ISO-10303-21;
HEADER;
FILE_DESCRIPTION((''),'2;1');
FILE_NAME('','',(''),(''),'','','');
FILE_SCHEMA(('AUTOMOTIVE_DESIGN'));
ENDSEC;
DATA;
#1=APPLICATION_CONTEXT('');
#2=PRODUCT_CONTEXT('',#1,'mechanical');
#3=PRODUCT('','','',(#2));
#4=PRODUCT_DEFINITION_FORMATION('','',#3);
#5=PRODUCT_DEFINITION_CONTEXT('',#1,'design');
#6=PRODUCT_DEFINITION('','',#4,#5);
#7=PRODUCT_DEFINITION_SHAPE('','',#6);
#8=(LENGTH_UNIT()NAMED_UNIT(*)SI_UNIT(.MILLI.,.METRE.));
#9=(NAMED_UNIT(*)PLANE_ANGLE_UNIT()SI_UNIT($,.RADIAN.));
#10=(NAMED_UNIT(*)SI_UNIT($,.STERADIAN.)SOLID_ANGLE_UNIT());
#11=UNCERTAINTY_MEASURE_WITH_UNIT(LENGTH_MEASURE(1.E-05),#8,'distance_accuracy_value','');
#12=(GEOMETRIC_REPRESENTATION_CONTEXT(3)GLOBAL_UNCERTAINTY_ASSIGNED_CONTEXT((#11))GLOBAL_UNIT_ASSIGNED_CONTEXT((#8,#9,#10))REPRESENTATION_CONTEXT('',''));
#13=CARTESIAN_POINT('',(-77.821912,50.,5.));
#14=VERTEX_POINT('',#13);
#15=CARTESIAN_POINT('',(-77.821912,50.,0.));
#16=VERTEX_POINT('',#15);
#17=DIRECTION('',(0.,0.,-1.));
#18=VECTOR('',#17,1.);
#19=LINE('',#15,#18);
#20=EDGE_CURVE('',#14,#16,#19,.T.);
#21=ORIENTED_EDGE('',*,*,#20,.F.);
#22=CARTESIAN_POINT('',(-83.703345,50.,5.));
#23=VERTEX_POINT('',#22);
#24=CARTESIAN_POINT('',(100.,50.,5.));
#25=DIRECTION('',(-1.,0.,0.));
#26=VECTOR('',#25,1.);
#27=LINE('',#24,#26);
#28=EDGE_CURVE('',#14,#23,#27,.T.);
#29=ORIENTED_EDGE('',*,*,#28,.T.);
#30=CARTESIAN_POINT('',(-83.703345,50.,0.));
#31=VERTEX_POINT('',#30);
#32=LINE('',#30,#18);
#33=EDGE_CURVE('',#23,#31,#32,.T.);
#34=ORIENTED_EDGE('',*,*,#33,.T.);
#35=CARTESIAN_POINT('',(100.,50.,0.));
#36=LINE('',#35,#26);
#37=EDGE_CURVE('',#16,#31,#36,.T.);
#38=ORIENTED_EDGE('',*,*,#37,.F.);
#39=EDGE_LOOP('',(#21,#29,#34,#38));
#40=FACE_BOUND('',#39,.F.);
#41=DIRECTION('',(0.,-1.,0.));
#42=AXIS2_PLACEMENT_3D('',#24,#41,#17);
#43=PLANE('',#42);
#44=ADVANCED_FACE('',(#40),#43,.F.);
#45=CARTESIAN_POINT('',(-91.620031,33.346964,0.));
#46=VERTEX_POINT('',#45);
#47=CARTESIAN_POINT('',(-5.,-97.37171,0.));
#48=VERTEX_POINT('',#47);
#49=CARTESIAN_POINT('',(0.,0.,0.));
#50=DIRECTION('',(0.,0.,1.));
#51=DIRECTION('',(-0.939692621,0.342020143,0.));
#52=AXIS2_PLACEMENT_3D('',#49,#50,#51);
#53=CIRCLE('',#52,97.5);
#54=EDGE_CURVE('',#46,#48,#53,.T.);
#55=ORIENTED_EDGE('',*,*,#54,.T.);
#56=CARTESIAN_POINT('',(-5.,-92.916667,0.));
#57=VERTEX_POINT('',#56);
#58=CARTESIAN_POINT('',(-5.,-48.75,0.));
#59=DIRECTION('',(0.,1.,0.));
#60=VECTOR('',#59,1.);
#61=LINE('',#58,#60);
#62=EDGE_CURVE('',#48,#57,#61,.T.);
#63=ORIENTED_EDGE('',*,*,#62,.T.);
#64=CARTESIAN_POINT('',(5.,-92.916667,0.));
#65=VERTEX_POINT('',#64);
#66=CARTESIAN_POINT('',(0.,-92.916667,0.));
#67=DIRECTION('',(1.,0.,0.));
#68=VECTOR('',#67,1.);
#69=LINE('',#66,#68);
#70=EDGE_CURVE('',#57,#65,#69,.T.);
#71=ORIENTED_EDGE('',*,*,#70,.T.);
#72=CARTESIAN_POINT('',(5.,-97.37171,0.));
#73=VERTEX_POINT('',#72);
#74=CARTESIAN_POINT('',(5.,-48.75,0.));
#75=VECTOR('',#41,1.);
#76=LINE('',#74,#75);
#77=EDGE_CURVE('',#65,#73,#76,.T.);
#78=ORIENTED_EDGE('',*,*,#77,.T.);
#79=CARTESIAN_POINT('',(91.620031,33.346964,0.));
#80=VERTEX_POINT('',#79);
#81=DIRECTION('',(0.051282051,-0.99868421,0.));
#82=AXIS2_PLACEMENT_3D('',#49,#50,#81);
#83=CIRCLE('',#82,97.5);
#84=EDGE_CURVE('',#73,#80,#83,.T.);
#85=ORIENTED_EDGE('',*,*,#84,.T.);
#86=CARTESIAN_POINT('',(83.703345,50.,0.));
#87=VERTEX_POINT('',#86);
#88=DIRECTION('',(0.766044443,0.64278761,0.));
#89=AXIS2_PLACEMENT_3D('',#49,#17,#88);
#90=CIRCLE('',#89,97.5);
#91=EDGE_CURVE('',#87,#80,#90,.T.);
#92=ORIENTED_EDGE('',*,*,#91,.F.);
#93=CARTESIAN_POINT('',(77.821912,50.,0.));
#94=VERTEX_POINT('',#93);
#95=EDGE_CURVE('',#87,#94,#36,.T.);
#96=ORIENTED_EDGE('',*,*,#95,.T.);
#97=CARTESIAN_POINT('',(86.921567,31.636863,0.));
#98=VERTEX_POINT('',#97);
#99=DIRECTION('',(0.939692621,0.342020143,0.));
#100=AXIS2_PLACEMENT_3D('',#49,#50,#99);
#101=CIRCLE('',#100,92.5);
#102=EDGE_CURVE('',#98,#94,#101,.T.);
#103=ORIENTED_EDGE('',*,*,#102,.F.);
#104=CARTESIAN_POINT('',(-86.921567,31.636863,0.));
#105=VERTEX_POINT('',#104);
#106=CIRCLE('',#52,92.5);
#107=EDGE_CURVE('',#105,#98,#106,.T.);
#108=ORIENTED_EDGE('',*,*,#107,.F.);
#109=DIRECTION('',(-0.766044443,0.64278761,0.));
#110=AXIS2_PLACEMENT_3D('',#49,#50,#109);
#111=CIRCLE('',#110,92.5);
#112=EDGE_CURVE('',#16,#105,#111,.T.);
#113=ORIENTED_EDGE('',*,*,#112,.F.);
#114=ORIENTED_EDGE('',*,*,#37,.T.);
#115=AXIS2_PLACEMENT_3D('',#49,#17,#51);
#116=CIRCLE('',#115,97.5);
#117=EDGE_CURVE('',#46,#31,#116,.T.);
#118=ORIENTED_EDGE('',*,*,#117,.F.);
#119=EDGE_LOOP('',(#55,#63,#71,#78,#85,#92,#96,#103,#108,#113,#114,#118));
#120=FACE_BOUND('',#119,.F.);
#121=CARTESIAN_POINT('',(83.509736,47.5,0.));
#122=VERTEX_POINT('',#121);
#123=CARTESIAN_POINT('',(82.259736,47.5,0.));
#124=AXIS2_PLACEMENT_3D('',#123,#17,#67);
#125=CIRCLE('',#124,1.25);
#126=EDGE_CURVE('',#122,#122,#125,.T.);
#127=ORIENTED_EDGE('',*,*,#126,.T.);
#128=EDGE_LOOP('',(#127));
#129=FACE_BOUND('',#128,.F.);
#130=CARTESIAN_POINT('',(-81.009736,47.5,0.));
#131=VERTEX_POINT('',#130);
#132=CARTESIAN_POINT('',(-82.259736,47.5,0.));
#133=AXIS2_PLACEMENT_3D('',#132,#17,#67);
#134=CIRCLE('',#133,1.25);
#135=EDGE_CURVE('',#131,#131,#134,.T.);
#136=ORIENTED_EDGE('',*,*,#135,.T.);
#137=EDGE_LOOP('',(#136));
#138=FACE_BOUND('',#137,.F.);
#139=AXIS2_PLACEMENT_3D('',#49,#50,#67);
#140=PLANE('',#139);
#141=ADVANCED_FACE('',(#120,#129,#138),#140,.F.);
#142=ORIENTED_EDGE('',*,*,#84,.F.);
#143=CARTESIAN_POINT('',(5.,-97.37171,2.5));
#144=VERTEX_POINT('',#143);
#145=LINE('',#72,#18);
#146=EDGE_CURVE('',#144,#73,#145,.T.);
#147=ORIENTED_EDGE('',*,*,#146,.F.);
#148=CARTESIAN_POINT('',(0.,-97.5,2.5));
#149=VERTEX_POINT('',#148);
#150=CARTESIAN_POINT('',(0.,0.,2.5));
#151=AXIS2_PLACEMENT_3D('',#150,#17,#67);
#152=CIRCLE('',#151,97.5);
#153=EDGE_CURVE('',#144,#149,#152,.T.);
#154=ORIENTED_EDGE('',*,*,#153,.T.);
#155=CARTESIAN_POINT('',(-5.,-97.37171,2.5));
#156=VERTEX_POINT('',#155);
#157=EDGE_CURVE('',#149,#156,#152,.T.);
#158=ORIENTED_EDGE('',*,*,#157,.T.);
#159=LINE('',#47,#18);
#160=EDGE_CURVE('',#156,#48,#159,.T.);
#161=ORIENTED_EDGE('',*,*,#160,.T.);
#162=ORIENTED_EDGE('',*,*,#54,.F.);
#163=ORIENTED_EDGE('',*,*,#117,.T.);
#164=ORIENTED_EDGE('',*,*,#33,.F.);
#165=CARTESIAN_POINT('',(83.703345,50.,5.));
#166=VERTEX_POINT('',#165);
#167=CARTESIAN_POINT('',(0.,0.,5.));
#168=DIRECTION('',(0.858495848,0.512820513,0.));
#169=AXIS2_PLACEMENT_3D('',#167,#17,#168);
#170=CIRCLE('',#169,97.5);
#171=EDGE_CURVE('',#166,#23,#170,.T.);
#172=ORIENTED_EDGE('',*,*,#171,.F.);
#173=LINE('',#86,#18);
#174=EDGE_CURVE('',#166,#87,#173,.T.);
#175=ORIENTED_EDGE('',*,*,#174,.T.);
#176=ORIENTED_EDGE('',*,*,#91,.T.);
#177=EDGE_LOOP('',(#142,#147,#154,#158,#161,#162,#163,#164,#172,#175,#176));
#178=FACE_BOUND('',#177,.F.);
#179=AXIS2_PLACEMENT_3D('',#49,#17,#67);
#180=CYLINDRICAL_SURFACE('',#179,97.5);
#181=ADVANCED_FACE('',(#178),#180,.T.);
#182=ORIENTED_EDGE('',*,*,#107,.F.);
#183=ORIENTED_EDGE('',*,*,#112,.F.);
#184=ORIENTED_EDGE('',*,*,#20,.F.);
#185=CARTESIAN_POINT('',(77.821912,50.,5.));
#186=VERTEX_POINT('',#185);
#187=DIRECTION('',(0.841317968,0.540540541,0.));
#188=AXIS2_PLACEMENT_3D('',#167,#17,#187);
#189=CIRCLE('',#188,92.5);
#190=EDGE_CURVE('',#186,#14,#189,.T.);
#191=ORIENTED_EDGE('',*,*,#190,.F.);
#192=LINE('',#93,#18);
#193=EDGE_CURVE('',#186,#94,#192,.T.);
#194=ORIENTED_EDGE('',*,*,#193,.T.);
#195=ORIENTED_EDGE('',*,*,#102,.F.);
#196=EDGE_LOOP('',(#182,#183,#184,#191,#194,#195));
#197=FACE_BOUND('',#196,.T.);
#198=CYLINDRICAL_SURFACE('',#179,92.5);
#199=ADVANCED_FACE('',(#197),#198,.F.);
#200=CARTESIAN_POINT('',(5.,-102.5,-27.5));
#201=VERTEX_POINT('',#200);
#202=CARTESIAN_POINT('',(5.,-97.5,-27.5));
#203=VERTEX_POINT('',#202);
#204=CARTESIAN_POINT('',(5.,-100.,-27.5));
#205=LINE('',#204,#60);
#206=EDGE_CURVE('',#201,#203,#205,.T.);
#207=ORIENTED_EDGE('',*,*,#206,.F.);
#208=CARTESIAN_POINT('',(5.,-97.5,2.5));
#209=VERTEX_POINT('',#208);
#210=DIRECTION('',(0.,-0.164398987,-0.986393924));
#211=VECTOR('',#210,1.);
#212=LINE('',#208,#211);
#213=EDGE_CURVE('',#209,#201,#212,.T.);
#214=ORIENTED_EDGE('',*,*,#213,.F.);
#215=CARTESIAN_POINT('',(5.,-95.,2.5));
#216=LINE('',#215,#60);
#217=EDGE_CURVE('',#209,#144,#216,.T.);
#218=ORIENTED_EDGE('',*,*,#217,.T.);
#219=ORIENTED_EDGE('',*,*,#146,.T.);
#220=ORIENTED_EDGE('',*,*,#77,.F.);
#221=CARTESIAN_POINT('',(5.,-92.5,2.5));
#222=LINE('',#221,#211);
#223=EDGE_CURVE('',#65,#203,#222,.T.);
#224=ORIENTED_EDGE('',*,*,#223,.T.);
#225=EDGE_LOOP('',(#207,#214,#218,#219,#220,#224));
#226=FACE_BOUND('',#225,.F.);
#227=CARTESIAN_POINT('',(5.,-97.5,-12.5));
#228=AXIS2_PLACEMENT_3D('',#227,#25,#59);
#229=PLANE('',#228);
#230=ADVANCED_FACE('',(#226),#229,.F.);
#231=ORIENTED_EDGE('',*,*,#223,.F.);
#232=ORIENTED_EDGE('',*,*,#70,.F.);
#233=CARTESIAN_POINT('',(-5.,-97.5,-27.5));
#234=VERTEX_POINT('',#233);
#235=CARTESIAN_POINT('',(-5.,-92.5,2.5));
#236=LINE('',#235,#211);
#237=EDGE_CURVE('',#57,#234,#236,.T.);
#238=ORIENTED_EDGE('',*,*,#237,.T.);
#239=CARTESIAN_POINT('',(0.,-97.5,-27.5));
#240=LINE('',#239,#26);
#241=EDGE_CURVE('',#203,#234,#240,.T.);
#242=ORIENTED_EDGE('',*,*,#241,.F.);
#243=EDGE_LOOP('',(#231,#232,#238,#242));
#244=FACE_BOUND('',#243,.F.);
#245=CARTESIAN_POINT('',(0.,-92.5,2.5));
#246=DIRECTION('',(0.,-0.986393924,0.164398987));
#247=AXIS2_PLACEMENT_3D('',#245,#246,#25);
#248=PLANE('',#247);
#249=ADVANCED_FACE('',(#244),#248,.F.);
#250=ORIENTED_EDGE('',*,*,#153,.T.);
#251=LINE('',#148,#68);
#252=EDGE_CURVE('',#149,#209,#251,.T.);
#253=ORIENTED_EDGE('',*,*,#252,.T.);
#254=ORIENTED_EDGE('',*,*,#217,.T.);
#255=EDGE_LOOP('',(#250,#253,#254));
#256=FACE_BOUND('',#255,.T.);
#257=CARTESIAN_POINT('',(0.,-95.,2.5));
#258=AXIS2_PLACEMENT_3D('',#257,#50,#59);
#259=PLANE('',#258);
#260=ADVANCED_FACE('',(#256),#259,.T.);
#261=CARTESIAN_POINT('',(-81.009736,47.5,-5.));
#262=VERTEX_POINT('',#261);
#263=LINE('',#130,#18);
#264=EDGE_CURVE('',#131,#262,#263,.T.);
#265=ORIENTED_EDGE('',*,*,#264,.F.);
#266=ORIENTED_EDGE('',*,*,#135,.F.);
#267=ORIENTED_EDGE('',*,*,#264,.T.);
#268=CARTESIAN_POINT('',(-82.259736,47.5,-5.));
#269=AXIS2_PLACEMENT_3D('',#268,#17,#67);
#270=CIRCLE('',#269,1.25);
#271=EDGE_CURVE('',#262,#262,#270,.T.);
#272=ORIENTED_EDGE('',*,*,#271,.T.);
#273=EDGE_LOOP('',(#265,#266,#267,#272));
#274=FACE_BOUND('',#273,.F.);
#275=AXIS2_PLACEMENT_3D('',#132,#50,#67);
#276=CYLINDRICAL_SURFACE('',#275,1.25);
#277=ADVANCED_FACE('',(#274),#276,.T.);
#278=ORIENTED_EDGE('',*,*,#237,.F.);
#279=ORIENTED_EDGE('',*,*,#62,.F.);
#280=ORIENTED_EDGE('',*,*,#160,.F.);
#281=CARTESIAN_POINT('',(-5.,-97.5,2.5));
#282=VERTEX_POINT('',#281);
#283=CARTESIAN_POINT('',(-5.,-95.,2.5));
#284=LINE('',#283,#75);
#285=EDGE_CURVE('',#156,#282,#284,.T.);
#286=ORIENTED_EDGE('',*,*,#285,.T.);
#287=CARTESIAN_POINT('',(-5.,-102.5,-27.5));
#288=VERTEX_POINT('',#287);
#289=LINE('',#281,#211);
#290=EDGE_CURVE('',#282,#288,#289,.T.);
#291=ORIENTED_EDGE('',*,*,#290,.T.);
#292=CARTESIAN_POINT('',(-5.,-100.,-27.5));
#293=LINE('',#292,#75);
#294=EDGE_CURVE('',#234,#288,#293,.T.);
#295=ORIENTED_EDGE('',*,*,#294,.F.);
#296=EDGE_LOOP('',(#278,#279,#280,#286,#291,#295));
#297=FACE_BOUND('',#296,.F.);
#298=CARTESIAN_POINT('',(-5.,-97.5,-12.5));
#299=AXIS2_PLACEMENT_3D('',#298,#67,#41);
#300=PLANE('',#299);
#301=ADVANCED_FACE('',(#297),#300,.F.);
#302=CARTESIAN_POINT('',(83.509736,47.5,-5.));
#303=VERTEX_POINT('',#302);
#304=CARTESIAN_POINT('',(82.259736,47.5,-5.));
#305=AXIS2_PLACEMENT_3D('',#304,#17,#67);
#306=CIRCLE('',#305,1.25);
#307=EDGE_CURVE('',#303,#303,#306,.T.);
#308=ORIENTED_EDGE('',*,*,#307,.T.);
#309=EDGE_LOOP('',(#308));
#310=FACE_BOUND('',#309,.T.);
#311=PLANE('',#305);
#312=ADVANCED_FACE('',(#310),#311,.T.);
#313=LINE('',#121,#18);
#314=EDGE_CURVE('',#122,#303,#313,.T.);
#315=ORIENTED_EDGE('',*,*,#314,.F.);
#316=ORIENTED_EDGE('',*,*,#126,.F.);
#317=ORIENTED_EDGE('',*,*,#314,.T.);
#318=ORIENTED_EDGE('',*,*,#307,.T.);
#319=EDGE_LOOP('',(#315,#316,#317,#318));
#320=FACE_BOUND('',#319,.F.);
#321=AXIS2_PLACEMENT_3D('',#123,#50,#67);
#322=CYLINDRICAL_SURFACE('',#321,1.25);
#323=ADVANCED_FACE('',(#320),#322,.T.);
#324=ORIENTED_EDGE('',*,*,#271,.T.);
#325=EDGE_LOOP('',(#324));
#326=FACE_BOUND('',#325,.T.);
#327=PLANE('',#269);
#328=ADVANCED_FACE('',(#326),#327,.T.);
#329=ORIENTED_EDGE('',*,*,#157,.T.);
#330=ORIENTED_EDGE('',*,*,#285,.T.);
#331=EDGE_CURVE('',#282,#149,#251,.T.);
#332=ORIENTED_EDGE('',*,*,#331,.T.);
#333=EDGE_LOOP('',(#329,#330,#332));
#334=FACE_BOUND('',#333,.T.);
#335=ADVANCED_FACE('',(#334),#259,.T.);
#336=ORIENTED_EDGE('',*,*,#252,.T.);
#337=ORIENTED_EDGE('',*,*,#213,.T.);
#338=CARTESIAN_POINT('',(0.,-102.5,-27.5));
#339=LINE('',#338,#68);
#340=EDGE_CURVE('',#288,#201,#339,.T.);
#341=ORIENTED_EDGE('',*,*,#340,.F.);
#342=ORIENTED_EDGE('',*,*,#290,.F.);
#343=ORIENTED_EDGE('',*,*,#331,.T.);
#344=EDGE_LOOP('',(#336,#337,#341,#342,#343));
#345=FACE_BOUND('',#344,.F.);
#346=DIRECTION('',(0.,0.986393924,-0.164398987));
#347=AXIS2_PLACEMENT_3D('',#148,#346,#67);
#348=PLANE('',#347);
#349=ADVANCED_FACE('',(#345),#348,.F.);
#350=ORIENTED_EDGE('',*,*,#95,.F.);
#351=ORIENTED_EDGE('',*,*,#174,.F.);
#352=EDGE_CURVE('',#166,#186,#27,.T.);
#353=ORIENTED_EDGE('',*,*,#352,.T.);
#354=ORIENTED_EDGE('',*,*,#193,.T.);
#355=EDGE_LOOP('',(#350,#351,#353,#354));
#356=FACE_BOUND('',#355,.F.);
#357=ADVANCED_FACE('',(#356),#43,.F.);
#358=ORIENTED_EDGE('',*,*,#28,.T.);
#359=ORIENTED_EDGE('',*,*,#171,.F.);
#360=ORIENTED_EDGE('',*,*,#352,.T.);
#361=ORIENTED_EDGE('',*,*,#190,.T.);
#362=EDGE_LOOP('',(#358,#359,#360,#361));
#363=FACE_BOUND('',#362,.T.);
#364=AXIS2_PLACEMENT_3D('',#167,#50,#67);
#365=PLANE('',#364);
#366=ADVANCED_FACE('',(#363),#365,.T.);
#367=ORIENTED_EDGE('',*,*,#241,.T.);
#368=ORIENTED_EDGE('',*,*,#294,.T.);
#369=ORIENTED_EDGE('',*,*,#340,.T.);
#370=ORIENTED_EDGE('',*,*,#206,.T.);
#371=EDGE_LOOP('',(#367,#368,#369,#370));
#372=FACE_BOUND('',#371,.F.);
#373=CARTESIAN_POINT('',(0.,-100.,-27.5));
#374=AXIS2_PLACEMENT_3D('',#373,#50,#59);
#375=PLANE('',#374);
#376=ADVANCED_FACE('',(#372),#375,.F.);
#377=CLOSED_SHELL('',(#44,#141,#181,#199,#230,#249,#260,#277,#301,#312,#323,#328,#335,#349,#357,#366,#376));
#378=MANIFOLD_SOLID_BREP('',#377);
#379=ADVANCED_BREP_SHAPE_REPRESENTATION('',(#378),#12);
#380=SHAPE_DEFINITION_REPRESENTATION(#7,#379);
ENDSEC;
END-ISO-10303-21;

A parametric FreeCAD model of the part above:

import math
import FreeCAD as App
import Part
import Sketcher

V = App.Vector
Q = App.Units.Quantity

doc = App.newDocument("Part")
body = doc.addObject("PartDesign::Body", "Body")

sketch1 = body.newObject("Sketcher::SketchObject", "Sketch")
sketch1.AttachmentSupport = (doc.getObject("XY_Plane"), [""])
sketch1.MapMode = "FlatFace"
sketch1.addGeometry(Part.Circle(V(0, 0, 0), V(0, 0, 1), 98), False)
sketch1.addGeometry(Part.Circle(V(0, 0, 0), V(0, 0, 1), 92), False)
sketch1.addConstraint(Sketcher.Constraint("Coincident", 0, 3, -1, 1))
sketch1.addConstraint(Sketcher.Constraint("Coincident", 1, 3, -1, 1))
sketch1.addConstraint(Sketcher.Constraint("Diameter", 0, 195.0))
sketch1.addConstraint(Sketcher.Constraint("Diameter", 1, 185.0))
pad1 = body.newObject("PartDesign::Pad", "Pad")
pad1.Profile = sketch1
pad1.Length = 5

sketch2 = body.newObject("Sketcher::SketchObject", "Sketch001")
sketch2.AttachmentSupport = (doc.getObject("XY_Plane"), [""])
sketch2.MapMode = "FlatFace"
sketch2.AttachmentOffset = App.Placement(V(0, 0, -27.5), App.Rotation())
sketch2.addGeometry(Part.LineSegment(V(-5, -98, 0), V(-5, -102, 0)), False)
sketch2.addGeometry(Part.LineSegment(V(-5, -102, 0), V(5, -102, 0)), False)
sketch2.addGeometry(Part.LineSegment(V(5, -102, 0), V(5, -98, 0)), False)
sketch2.addGeometry(Part.LineSegment(V(5, -98, 0), V(-5, -98, 0)), False)
sketch2.addConstraint(Sketcher.Constraint("Coincident", 0, 2, 1, 1))
sketch2.addConstraint(Sketcher.Constraint("Coincident", 1, 2, 2, 1))
sketch2.addConstraint(Sketcher.Constraint("Coincident", 2, 2, 3, 1))
sketch2.addConstraint(Sketcher.Constraint("Coincident", 3, 2, 0, 1))
sketch2.addConstraint(Sketcher.Constraint("Vertical", 0))
sketch2.addConstraint(Sketcher.Constraint("Horizontal", 1))
sketch2.addConstraint(Sketcher.Constraint("Vertical", 2))
sketch2.addConstraint(Sketcher.Constraint("Horizontal", 3))
sketch2.addConstraint(Sketcher.Constraint("DistanceX", 1, 1, 1, 2, 10.0))
sketch2.addConstraint(Sketcher.Constraint("DistanceY", 0, 2, 0, 1, 5.0))
sketch2.addConstraint(Sketcher.Constraint("DistanceX", 0, 2, -1, 1, 5.0))
sketch2.addConstraint(Sketcher.Constraint("DistanceY", 0, 2, -1, 1, 102.5))

sketch3 = body.newObject("Sketcher::SketchObject", "Sketch002")
sketch3.Placement = App.Placement(V(0, -92.837838, 15.472973), App.Rotation(V(0, 0.164398987, 0.986393924), V(1, 0, 0), V(0, 0.986393924, -0.164398987), "ZXY"))
sketch3.addGeometry(Part.LineSegment(V(-13, 0, 0), V(-44, 0, 0)), False)
sketch3.addConstraint(Sketcher.Constraint("Horizontal", 0))
sketch3.addConstraint(Sketcher.Constraint("PointOnObject", 0, 1, -1))
sketch3.addConstraint(Sketcher.Constraint("DistanceX", 0, 2, 0, 1, 30.413813))
sketch3.addConstraint(Sketcher.Constraint("DistanceX", 0, 1, -1, 1, 13.151919))
doc.recompute()

additivepipe = body.newObject("PartDesign::AdditivePipe", "AdditivePipe")
additivepipe.Profile = sketch2
additivepipe.Spine = (sketch3, ["Edge1"])

sketch4 = body.newObject("Sketcher::SketchObject", "Sketch003")
sketch4.AttachmentSupport = (doc.getObject("XY_Plane"), [""])
sketch4.MapMode = "FlatFace"
sketch4.addGeometry(Part.LineSegment(V(-74.7, 62.7, 0), V(-70.9, 59.5, 0)), False)
sketch4.addGeometry(Part.ArcOfCircle(Part.Circle(V(0, 0, 0), V(0, 0, 1), 92.5), math.radians(140), math.radians(160)), False)
sketch4.addGeometry(Part.LineSegment(V(-86.9, 31.6, 0), V(-91.6, 33.3, 0)), False)
sketch4.addGeometry(Part.ArcOfCircle(Part.Circle(V(0, 0, 0), V(0, 0, 1), 97.5), math.radians(140), math.radians(160)), False)
sketch4.addGeometry(Part.ArcOfCircle(Part.Circle(V(0, 0, 0), V(0, 0, 1), 92.5), math.radians(20), math.radians(40)), False)
sketch4.addGeometry(Part.LineSegment(V(70.9, 59.5, 0), V(74.7, 62.7, 0)), False)
sketch4.addGeometry(Part.ArcOfCircle(Part.Circle(V(0, 0, 0), V(0, 0, 1), 97.5), math.radians(20), math.radians(40)), False)
sketch4.addGeometry(Part.LineSegment(V(91.6, 33.3, 0), V(86.9, 31.6, 0)), False)
sketch4.addConstraint(Sketcher.Constraint("Coincident", 0, 2, 1, 1))
sketch4.addConstraint(Sketcher.Constraint("Coincident", 1, 2, 2, 1))
sketch4.addConstraint(Sketcher.Constraint("Coincident", 2, 2, 3, 2))
sketch4.addConstraint(Sketcher.Constraint("Coincident", 3, 1, 0, 1))
sketch4.addConstraint(Sketcher.Constraint("Coincident", 4, 2, 5, 1))
sketch4.addConstraint(Sketcher.Constraint("Coincident", 5, 2, 6, 2))
sketch4.addConstraint(Sketcher.Constraint("Coincident", 6, 1, 7, 1))
sketch4.addConstraint(Sketcher.Constraint("Coincident", 7, 2, 4, 1))
sketch4.addConstraint(Sketcher.Constraint("Coincident", 1, 3, -1, 1))
sketch4.addConstraint(Sketcher.Constraint("Coincident", 3, 3, -1, 1))
sketch4.addConstraint(Sketcher.Constraint("Coincident", 4, 3, -1, 1))
sketch4.addConstraint(Sketcher.Constraint("Coincident", 6, 3, -1, 1))
sketch4.addConstraint(Sketcher.Constraint("Equal", 1, 4))
sketch4.addConstraint(Sketcher.Constraint("Equal", 3, 6))
sketch4.addConstraint(Sketcher.Constraint("Horizontal", 0, 2, 4, 2))
sketch4.addConstraint(Sketcher.Constraint("Horizontal", 3, 1, 5, 2))
sketch4.addConstraint(Sketcher.Constraint("Horizontal", 2, 2, 6, 1))
sketch4.addConstraint(Sketcher.Constraint("Horizontal", 1, 2, 7, 2))
sketch4.addConstraint(Sketcher.Constraint("Radius", 1, 92.5))
sketch4.addConstraint(Sketcher.Constraint("Radius", 3, 97.5))
sketch4.addConstraint(Sketcher.Constraint("Angle", 0, Q("-40 deg")))
sketch4.addConstraint(Sketcher.Constraint("Angle", 2, Q("160 deg")))
sketch4.addConstraint(Sketcher.Constraint("DistanceX", 0, 2, -1, 1, 70.859111))
sketch4.addConstraint(Sketcher.Constraint("DistanceX", 2, 2, -1, 1, 91.620031))
pad2 = body.newObject("PartDesign::Pad", "Pad001")
pad2.Profile = sketch4
pad2.Length = 27.5
pad2.Reversed = True

sketch5 = body.newObject("Sketcher::SketchObject", "Sketch004")
sketch5.AttachmentSupport = (doc.getObject("YZ_Plane"), [""])
sketch5.MapMode = "FlatFace"
sketch5.AttachmentOffset = App.Placement(V(0, 0, 100), App.Rotation())
sketch5.addGeometry(Part.LineSegment(V(50, 0, 0), V(0, 0, 0)), False)
sketch5.addGeometry(Part.LineSegment(V(0, 0, 0), V(0, -29, 0)), False)
sketch5.addGeometry(Part.LineSegment(V(0, -29, 0), V(102, -29, 0)), False)
sketch5.addGeometry(Part.LineSegment(V(102, -29, 0), V(102, 5, 0)), False)
sketch5.addGeometry(Part.LineSegment(V(102, 5, 0), V(50, 5, 0)), False)
sketch5.addGeometry(Part.LineSegment(V(50, 5, 0), V(50, 0, 0)), False)
sketch5.addConstraint(Sketcher.Constraint("Coincident", 0, 2, 1, 1))
sketch5.addConstraint(Sketcher.Constraint("Coincident", 1, 2, 2, 1))
sketch5.addConstraint(Sketcher.Constraint("Coincident", 2, 2, 3, 1))
sketch5.addConstraint(Sketcher.Constraint("Coincident", 3, 2, 4, 1))
sketch5.addConstraint(Sketcher.Constraint("Coincident", 4, 2, 5, 1))
sketch5.addConstraint(Sketcher.Constraint("Coincident", 5, 2, 0, 1))
sketch5.addConstraint(Sketcher.Constraint("Horizontal", 0))
sketch5.addConstraint(Sketcher.Constraint("Vertical", 1))
sketch5.addConstraint(Sketcher.Constraint("Horizontal", 2))
sketch5.addConstraint(Sketcher.Constraint("Vertical", 3))
sketch5.addConstraint(Sketcher.Constraint("Horizontal", 4))
sketch5.addConstraint(Sketcher.Constraint("Vertical", 5))
sketch5.addConstraint(Sketcher.Constraint("Coincident", 0, 2, -1, 1))
sketch5.addConstraint(Sketcher.Constraint("DistanceX", 0, 2, 0, 1, 50.0))
sketch5.addConstraint(Sketcher.Constraint("DistanceY", 5, 2, 5, 1, 5.0))
sketch5.addConstraint(Sketcher.Constraint("DistanceX", 2, 1, 2, 2, 101.85755))
sketch5.addConstraint(Sketcher.Constraint("DistanceY", 1, 2, 1, 1, 29.498255))
pocket1 = body.newObject("PartDesign::Pocket", "Pocket")
pocket1.Profile = sketch5
pocket1.Type = "ThroughAll"

sketch6 = body.newObject("Sketcher::SketchObject", "Sketch005")
sketch6.AttachmentSupport = (doc.getObject("XY_Plane"), [""])
sketch6.MapMode = "FlatFace"
sketch6.addGeometry(Part.Circle(V(82.3, 47.5, 0), V(0, 0, 1), 1.2), False)
sketch6.addGeometry(Part.Circle(V(-82.3, 47.5, 0), V(0, 0, 1), 1.2), False)
sketch6.addConstraint(Sketcher.Constraint("Equal", 0, 1))
sketch6.addConstraint(Sketcher.Constraint("Symmetric", 0, 3, 1, 3, -2))
sketch6.addConstraint(Sketcher.Constraint("Diameter", 0, 2.5))
sketch6.addConstraint(Sketcher.Constraint("DistanceY", -1, 1, 0, 3, 47.5))
sketch6.addConstraint(Sketcher.Constraint("DistanceX", 1, 3, 0, 3, 164.519471))
pad3 = body.newObject("PartDesign::Pad", "Pad002")
pad3.Profile = sketch6
pad3.Length = 5
pad3.Reversed = True

doc.recompute()
